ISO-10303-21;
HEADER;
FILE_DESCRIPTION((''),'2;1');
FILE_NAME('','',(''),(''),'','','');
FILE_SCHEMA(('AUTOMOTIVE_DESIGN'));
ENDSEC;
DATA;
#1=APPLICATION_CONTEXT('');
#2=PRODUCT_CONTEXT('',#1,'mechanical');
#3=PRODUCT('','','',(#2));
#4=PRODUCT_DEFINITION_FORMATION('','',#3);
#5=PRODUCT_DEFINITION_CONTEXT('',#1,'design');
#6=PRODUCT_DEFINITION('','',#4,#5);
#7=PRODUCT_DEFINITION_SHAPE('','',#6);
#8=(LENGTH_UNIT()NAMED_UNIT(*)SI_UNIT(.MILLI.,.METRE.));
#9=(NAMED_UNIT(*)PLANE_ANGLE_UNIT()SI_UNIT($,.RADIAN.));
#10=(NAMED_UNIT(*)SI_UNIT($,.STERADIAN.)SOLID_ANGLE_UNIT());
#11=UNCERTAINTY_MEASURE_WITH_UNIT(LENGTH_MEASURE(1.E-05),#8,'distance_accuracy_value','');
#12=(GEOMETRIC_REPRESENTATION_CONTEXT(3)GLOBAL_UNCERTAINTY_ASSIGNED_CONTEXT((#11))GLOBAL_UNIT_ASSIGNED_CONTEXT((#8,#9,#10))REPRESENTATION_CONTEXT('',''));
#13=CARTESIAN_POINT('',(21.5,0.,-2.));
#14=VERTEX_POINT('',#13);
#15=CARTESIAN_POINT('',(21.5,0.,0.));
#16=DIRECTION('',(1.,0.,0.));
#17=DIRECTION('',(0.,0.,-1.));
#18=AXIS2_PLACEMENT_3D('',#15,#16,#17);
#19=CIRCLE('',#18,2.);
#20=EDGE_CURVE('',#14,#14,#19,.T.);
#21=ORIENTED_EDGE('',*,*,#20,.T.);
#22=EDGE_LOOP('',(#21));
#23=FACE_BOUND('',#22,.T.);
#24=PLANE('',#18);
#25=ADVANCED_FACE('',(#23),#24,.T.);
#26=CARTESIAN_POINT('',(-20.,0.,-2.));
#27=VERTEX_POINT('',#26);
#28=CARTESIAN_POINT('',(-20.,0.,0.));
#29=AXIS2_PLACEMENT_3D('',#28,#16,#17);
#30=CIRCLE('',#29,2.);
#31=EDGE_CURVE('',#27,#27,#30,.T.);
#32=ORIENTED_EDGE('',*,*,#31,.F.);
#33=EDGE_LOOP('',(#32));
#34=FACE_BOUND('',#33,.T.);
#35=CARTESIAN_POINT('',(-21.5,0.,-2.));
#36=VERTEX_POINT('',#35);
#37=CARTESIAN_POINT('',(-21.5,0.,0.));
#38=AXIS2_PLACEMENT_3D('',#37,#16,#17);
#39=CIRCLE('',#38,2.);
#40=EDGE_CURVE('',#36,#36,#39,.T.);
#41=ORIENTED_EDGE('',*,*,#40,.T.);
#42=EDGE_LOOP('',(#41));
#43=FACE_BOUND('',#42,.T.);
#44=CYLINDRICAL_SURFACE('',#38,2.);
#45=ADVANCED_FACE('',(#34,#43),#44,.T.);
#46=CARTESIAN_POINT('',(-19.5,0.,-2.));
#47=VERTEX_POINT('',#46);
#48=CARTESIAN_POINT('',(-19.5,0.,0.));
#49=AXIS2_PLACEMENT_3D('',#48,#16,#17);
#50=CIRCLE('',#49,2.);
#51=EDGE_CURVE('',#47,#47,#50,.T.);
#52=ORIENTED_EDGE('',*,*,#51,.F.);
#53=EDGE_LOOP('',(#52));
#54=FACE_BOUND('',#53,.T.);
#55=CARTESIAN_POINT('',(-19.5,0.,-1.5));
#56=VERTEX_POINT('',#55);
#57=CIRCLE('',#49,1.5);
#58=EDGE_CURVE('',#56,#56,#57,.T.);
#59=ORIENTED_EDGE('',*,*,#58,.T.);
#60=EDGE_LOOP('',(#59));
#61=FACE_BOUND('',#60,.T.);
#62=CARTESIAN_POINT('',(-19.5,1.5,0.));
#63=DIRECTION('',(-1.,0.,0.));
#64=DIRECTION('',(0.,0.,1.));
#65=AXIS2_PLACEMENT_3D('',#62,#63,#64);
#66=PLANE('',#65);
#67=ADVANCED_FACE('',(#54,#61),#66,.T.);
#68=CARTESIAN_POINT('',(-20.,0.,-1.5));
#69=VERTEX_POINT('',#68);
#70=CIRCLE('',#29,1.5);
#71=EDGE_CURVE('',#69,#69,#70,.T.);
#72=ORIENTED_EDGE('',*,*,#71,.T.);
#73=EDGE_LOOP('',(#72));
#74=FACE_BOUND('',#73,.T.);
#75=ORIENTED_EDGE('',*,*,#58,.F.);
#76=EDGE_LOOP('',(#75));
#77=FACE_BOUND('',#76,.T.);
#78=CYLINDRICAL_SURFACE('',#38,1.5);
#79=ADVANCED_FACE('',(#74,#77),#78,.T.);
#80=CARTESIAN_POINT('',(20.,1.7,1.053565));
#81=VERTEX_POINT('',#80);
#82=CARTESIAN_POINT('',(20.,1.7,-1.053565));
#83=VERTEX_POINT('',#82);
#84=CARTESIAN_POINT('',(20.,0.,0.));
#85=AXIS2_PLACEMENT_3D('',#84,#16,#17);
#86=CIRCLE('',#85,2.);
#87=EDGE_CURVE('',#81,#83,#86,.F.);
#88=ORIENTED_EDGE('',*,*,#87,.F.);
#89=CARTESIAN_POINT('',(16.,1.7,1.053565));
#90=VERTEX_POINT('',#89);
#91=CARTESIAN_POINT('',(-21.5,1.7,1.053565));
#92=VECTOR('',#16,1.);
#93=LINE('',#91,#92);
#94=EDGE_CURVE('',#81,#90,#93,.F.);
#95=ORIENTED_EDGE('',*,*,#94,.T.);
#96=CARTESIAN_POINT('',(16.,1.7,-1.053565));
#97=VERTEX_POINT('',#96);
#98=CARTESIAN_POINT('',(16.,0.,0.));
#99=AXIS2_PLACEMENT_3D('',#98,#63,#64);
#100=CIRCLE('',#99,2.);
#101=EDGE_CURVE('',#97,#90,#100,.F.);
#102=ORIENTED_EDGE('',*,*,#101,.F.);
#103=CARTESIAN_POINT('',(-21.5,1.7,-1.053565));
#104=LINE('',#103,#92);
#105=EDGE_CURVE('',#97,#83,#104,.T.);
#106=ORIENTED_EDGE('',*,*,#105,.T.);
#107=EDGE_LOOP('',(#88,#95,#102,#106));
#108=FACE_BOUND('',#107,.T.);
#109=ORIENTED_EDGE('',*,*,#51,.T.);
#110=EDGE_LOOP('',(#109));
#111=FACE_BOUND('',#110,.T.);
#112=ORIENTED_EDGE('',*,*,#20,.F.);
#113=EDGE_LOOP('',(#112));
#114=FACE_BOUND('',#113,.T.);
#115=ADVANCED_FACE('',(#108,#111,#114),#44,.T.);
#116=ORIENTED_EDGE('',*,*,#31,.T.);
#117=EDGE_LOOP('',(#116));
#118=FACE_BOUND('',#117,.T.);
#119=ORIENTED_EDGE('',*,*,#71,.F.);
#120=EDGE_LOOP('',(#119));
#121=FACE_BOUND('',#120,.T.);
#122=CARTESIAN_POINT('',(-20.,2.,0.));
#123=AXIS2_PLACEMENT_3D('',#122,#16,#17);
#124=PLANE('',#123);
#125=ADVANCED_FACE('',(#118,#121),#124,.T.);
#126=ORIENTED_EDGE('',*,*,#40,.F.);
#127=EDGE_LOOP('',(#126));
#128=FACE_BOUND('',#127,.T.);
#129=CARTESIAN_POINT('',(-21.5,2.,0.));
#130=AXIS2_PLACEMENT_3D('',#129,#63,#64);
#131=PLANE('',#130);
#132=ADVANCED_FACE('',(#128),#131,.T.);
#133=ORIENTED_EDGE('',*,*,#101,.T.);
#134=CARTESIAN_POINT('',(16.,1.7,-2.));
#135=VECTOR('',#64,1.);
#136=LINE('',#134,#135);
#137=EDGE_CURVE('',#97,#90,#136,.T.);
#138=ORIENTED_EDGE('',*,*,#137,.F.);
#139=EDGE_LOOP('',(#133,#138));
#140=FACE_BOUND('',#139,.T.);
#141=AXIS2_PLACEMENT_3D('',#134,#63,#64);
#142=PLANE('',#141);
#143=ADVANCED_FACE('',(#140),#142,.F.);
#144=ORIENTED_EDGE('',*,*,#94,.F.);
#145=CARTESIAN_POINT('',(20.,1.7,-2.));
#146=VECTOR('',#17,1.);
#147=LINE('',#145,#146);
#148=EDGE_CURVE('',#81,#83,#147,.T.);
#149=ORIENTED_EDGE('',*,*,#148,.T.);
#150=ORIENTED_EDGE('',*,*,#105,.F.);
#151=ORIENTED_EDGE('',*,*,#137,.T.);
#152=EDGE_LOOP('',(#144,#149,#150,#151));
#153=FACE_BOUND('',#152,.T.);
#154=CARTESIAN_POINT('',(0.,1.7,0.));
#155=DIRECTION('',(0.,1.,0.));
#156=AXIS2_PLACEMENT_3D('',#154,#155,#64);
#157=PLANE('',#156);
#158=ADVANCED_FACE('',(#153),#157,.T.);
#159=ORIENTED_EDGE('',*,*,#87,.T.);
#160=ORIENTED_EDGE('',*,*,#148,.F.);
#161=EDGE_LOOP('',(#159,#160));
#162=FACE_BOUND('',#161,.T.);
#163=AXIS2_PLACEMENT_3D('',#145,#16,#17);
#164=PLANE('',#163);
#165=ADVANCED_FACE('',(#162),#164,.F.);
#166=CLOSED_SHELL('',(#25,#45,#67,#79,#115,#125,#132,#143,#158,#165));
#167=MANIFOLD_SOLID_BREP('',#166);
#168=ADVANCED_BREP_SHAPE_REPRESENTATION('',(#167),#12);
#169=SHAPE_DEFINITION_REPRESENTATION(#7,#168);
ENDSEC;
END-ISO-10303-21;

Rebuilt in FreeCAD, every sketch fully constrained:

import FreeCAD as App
import Part
import Sketcher

doc = App.newDocument("Part")
body = doc.addObject("PartDesign::Body", "Body")

# Sketch on XY plane
sketch1 = doc.addObject("Sketcher::SketchObject", "Sketch")
body.addObject(sketch1)
sketch1.AttachmentSupport = (doc.XY_Plane, [""])
sketch1.MapMode = "FlatFace"
sketch1.addGeometry(Part.LineSegment(App.Vector(-21.5, 0, 0), App.Vector(21.5, 0, 0)), False)
sketch1.addGeometry(Part.LineSegment(App.Vector(21.5, 0, 0), App.Vector(21.5, 2, 0)), False)
sketch1.addGeometry(Part.LineSegment(App.Vector(21.5, 2, 0), App.Vector(-19.5, 2, 0)), False)
sketch1.addGeometry(Part.LineSegment(App.Vector(-19.5, 2, 0), App.Vector(-19.5, 1.5, 0)), False)
sketch1.addGeometry(Part.LineSegment(App.Vector(-19.5, 1.5, 0), App.Vector(-20, 1.5, 0)), False)
sketch1.addGeometry(Part.LineSegment(App.Vector(-20, 1.5, 0), App.Vector(-20, 2, 0)), False)
sketch1.addGeometry(Part.LineSegment(App.Vector(-20, 2, 0), App.Vector(-21.5, 2, 0)), False)
sketch1.addGeometry(Part.LineSegment(App.Vector(-21.5, 2, 0), App.Vector(-21.5, 0, 0)), False)
sketch1.addConstraint(Sketcher.Constraint("Coincident", 0, 2, 1, 1))
sketch1.addConstraint(Sketcher.Constraint("Coincident", 1, 2, 2, 1))
sketch1.addConstraint(Sketcher.Constraint("Coincident", 2, 2, 3, 1))
sketch1.addConstraint(Sketcher.Constraint("Coincident", 3, 2, 4, 1))
sketch1.addConstraint(Sketcher.Constraint("Coincident", 4, 2, 5, 1))
sketch1.addConstraint(Sketcher.Constraint("Coincident", 5, 2, 6, 1))
sketch1.addConstraint(Sketcher.Constraint("Coincident", 6, 2, 7, 1))
sketch1.addConstraint(Sketcher.Constraint("Coincident", 7, 2, 0, 1))
sketch1.addConstraint(Sketcher.Constraint("Horizontal", 0))
sketch1.addConstraint(Sketcher.Constraint("Vertical", 1))
sketch1.addConstraint(Sketcher.Constraint("Horizontal", 2))
sketch1.addConstraint(Sketcher.Constraint("Vertical", 3))
sketch1.addConstraint(Sketcher.Constraint("Horizontal", 4))
sketch1.addConstraint(Sketcher.Constraint("Vertical", 5))
sketch1.addConstraint(Sketcher.Constraint("Horizontal", 6))
sketch1.addConstraint(Sketcher.Constraint("Vertical", 7))
sketch1.addConstraint(Sketcher.Constraint("Symmetric", 0, 2, 7, 2, -1, 1))
sketch1.addConstraint(Sketcher.Constraint("Horizontal", 2, 2, 5, 2))
sketch1.addConstraint(Sketcher.Constraint("Equal", 4, 3))
sketch1.addConstraint(Sketcher.Constraint("DistanceX", 0, 1, 0, 2, 43.0))
sketch1.addConstraint(Sketcher.Constraint("DistanceX", 2, 2, 2, 1, 41.0))
sketch1.addConstraint(Sketcher.Constraint("DistanceY", 1, 1, 1, 2, 2.0))
sketch1.addConstraint(Sketcher.Constraint("DistanceX", 4, 2, 4, 1, 0.5))
revolution = doc.addObject("PartDesign::Revolution", "Revolution")
body.addObject(revolution)
revolution.Profile = sketch1
revolution.ReferenceAxis = (sketch1, ["H_Axis"])
revolution.Angle = 360

# Sketch on XZ plane
sketch2 = doc.addObject("Sketcher::SketchObject", "Sketch001")
body.addObject(sketch2)
sketch2.AttachmentSupport = (doc.XZ_Plane, [""])
sketch2.MapMode = "FlatFace"
sketch2.AttachmentOffset = App.Placement(App.Vector(0, 0, -2), App.Rotation())
sketch2.addGeometry(Part.LineSegment(App.Vector(16, -2, 0), App.Vector(16, 2, 0)), False)
sketch2.addGeometry(Part.LineSegment(App.Vector(16, 2, 0), App.Vector(20, 2, 0)), False)
sketch2.addGeometry(Part.LineSegment(App.Vector(20, 2, 0), App.Vector(20, -2, 0)), False)
sketch2.addGeometry(Part.LineSegment(App.Vector(20, -2, 0), App.Vector(16, -2, 0)), False)
sketch2.addConstraint(Sketcher.Constraint("Coincident", 0, 2, 1, 1))
sketch2.addConstraint(Sketcher.Constraint("Coincident", 1, 2, 2, 1))
sketch2.addConstraint(Sketcher.Constraint("Coincident", 2, 2, 3, 1))
sketch2.addConstraint(Sketcher.Constraint("Coincident", 3, 2, 0, 1))
sketch2.addConstraint(Sketcher.Constraint("Vertical", 0))
sketch2.addConstraint(Sketcher.Constraint("Horizontal", 1))
sketch2.addConstraint(Sketcher.Constraint("Vertical", 2))
sketch2.addConstraint(Sketcher.Constraint("Horizontal", 3))
sketch2.addConstraint(Sketcher.Constraint("Equal", 3, 0))
sketch2.addConstraint(Sketcher.Constraint("DistanceX", 1, 1, 1, 2, 4.0))
sketch2.addConstraint(Sketcher.Constraint("DistanceX", -1, 1, 0, 2, 16.0))
sketch2.addConstraint(Sketcher.Constraint("DistanceY", -1, 1, 0, 2, 2.0))
pocket1 = doc.addObject("PartDesign::Pocket", "Pocket")
body.addObject(pocket1)
pocket1.Profile = sketch2
pocket1.Length = 0.3
pocket1.Reversed = True

doc.recompute()
